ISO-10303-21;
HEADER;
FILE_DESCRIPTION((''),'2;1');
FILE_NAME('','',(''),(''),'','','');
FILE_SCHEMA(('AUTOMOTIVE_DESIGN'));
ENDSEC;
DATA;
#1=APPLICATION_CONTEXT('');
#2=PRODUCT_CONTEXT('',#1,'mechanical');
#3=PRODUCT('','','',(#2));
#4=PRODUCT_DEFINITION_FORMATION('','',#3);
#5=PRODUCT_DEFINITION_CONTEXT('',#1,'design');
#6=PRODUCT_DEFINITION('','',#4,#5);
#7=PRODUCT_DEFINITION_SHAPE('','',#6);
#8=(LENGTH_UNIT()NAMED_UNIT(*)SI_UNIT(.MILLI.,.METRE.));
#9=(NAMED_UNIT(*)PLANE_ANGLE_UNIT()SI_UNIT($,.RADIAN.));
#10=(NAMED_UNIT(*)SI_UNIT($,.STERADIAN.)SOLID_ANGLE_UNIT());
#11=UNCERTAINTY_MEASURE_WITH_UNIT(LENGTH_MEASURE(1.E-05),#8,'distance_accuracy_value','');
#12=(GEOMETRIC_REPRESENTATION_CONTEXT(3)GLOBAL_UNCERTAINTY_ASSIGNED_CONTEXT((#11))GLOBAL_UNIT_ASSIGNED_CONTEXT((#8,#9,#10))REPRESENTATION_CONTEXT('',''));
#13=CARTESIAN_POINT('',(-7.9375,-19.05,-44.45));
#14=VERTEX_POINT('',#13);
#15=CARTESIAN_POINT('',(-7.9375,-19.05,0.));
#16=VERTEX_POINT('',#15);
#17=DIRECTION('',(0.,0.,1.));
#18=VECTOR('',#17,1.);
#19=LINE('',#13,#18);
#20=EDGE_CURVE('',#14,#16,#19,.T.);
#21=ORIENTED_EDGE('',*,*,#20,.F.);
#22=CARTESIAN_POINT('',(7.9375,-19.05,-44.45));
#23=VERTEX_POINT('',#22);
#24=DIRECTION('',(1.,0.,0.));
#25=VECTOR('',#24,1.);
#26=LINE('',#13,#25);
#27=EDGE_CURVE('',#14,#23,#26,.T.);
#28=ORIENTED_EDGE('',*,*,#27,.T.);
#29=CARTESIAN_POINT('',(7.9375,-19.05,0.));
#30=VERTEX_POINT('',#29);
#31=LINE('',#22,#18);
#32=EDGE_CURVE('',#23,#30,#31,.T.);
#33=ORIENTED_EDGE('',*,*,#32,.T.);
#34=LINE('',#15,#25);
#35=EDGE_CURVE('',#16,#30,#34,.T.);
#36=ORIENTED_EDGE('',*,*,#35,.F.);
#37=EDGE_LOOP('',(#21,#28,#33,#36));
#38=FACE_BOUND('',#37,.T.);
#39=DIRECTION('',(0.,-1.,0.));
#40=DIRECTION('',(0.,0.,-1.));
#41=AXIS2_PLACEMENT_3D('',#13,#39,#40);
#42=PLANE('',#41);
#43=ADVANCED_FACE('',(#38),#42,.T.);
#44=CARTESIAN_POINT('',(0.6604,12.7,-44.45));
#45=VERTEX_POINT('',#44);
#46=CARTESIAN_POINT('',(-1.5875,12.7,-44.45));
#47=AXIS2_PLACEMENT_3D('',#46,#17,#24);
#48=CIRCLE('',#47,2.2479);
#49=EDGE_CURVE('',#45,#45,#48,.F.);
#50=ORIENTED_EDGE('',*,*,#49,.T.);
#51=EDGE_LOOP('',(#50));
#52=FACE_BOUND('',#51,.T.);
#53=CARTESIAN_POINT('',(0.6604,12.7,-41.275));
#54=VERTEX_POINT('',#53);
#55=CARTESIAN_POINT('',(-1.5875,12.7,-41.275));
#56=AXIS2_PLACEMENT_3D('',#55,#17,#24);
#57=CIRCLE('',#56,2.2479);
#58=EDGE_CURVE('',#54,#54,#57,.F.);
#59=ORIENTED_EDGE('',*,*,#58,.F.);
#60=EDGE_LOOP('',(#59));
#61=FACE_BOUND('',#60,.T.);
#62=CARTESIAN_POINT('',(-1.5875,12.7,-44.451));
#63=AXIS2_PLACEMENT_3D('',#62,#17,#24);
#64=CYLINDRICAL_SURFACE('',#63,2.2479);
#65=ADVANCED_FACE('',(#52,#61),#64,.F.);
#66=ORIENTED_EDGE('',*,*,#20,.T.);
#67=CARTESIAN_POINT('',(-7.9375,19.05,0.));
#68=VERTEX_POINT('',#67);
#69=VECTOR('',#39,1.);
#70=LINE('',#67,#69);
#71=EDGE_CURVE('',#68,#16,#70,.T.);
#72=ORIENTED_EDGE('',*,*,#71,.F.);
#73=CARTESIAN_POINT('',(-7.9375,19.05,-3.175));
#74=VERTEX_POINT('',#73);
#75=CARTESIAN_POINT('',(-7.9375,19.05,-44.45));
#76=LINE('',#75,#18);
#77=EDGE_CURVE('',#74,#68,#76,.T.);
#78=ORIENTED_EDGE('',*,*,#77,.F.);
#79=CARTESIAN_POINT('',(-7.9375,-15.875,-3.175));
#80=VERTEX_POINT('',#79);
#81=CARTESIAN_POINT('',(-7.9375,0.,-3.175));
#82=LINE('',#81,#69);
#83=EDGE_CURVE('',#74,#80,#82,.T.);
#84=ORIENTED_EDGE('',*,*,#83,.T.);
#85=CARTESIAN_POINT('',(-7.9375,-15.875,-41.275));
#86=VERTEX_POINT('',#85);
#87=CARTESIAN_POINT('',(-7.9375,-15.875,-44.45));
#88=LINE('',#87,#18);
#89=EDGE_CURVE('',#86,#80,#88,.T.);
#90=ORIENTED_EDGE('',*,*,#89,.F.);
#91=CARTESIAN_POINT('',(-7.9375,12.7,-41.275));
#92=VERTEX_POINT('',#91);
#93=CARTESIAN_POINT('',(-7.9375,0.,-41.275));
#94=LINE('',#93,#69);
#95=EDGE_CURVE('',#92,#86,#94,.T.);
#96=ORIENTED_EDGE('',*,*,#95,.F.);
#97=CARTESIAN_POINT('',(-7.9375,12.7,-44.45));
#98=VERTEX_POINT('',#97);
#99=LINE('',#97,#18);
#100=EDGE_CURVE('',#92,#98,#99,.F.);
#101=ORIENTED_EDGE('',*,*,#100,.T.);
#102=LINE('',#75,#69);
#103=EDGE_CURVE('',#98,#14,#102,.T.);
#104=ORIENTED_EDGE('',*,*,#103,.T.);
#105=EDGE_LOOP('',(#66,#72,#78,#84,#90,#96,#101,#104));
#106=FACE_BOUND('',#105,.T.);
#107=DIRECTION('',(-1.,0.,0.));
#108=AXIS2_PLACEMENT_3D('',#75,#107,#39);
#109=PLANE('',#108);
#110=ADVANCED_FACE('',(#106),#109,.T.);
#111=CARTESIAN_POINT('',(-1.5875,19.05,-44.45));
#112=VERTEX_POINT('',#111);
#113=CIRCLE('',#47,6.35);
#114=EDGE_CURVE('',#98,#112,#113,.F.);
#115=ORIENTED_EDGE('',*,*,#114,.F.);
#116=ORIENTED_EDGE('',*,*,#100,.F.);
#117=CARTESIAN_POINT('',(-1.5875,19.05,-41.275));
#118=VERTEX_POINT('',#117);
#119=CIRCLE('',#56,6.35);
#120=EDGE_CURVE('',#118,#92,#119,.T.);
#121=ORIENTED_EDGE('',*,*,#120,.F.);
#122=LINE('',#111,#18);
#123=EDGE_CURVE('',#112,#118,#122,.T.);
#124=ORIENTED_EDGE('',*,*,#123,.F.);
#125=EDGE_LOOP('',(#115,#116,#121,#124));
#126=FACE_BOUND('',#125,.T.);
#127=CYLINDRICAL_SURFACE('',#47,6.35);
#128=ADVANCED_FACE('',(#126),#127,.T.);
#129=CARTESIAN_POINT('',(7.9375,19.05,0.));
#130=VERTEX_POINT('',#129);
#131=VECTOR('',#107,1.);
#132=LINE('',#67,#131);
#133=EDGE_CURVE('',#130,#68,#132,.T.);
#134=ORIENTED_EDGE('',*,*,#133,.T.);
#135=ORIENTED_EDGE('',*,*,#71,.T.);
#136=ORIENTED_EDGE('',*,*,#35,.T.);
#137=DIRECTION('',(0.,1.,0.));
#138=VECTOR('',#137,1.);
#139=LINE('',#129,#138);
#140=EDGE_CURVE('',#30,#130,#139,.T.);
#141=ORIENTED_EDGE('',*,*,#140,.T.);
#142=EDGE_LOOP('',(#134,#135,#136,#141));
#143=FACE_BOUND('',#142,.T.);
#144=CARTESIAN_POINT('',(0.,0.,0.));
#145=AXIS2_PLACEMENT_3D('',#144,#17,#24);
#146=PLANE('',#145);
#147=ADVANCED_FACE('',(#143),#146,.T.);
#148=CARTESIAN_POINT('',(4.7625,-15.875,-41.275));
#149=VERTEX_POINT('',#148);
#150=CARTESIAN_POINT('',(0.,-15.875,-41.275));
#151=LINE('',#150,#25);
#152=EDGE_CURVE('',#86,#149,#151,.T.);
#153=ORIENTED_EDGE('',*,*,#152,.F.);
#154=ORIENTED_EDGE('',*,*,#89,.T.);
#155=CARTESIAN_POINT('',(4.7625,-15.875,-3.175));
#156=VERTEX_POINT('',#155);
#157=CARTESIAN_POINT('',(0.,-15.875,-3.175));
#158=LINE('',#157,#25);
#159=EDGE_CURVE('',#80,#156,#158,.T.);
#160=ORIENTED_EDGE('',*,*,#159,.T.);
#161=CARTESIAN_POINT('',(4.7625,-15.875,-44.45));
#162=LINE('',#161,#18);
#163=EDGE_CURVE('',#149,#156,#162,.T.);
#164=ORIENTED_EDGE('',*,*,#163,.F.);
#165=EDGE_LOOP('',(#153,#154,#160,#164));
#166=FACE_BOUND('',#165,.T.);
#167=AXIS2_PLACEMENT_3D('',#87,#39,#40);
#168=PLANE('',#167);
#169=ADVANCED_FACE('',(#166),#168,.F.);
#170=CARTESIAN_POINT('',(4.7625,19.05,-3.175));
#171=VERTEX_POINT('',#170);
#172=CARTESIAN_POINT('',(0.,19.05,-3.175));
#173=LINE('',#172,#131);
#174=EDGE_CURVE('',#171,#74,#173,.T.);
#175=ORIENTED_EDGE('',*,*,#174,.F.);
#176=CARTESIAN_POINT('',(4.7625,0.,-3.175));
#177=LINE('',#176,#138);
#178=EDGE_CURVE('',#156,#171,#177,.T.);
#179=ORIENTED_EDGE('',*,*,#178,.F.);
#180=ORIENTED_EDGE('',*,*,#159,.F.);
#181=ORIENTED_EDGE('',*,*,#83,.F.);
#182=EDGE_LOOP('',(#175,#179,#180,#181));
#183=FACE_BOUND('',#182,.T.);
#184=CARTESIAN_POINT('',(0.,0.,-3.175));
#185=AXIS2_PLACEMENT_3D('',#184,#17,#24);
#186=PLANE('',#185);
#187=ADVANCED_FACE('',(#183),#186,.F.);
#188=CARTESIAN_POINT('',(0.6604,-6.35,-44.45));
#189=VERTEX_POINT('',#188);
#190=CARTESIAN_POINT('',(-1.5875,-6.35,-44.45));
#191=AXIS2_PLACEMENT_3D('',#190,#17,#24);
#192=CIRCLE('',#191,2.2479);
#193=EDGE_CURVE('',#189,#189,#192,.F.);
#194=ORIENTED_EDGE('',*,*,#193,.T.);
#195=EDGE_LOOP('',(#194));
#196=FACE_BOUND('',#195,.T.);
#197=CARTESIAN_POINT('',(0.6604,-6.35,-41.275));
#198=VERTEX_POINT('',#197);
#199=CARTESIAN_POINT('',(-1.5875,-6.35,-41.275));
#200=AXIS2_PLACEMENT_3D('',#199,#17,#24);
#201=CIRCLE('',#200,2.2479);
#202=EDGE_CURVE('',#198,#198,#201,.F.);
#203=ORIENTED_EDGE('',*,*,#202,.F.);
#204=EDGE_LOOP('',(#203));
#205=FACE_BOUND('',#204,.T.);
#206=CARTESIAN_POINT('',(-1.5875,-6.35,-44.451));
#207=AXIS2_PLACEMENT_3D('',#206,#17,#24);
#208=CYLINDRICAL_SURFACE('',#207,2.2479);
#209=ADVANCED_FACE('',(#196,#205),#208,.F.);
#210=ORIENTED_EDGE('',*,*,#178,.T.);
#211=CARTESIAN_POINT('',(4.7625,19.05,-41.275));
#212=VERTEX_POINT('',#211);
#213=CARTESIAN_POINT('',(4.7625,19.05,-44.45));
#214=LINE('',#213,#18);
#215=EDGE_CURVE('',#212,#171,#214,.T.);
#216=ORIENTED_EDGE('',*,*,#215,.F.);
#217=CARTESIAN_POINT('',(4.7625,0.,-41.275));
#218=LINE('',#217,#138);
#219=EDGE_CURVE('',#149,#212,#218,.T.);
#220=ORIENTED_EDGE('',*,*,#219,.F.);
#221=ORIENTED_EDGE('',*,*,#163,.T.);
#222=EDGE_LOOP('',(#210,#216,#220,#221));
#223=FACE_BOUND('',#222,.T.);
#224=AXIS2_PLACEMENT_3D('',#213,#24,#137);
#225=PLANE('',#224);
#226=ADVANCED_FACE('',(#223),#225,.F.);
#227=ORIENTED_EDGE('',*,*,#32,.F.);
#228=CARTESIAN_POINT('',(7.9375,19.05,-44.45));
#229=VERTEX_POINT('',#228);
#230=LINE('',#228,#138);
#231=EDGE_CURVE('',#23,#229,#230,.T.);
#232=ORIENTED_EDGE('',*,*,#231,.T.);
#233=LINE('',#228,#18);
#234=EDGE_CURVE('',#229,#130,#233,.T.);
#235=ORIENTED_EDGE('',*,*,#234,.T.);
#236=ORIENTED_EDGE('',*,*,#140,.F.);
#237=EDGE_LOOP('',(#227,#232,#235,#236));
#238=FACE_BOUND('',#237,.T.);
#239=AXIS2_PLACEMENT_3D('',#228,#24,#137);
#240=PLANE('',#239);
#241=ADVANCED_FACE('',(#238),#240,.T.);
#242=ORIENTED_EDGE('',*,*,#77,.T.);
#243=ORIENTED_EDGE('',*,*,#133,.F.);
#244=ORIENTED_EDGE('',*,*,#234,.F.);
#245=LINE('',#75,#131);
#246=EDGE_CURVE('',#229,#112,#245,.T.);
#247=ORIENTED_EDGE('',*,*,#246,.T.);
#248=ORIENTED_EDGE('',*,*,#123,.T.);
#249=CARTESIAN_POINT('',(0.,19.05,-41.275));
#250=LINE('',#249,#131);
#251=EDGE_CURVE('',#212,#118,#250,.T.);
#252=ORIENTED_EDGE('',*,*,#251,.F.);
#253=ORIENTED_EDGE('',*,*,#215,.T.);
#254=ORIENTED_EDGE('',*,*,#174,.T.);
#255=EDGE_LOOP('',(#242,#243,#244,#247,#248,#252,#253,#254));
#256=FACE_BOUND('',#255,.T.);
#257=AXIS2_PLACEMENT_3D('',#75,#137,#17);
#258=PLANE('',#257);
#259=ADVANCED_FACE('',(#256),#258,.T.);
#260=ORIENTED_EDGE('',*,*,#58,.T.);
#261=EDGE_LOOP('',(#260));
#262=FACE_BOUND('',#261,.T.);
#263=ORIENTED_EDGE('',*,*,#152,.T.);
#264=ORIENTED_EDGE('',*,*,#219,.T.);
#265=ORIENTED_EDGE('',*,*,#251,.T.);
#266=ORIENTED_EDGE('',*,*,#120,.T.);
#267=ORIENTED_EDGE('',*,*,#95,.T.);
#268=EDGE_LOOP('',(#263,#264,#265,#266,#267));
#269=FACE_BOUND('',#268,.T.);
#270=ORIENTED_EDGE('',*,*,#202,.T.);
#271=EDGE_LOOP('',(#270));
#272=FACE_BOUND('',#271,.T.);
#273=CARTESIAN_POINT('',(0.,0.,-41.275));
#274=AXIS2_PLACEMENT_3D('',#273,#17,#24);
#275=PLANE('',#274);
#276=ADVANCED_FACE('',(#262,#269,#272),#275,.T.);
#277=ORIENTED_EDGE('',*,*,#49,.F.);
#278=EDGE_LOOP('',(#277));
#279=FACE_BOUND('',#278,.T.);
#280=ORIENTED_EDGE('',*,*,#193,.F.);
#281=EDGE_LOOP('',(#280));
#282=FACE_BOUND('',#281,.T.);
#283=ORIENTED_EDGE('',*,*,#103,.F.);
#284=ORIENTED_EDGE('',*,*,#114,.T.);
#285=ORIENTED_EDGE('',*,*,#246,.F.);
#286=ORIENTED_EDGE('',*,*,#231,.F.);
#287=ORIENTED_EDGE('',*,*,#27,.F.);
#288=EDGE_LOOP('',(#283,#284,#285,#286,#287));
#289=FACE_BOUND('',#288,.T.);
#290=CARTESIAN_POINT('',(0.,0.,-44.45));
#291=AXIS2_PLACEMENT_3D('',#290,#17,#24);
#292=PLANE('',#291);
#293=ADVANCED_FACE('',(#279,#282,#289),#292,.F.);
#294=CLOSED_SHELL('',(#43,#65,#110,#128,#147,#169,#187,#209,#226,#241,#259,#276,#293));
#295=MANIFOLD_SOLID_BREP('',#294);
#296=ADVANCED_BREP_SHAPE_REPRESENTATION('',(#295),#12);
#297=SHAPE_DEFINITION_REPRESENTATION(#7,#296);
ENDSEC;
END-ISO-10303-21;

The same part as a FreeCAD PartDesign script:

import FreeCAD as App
import Part
import Sketcher
Q = App.Units.Quantity


def edges_at(feature, points):
    """Names of the edges that pass closest to the given points."""
    edges = feature.Shape.Edges
    near = lambda p: min(range(len(edges)), key=lambda i: edges[i].distToShape(Part.Vertex(*p))[0])
    return sorted({f"Edge{near(p) + 1}" for p in points})


def faces_at(feature, points):
    """Names of the faces that lie closest to the given points."""
    faces = feature.Shape.Faces
    near = lambda p: min(range(len(faces)), key=lambda i: faces[i].distToShape(Part.Vertex(*p))[0])
    return sorted({f"Face{near(p) + 1}" for p in points})

doc = App.newDocument("Part")
params = doc.addObject("Spreadsheet::Sheet", "Params")
for row, (alias, value) in enumerate([
    ("sketch1_height", "1.5 in"),
    ("sketch1_width", "0.625 in"),
    ("pad1_length", "1.75 in"),
    ("thickness_wall", "0.125 in"),
    ("sketch2_diameter", "0.177 in"),
    ("pocket1_length", "1.625 in"),
    ("sketch3_diameter", "0.177 in"),
    ("pocket2_length", "1.625 in"),
    ("fillet_radius", "0.25 in"),
], start=1):
    params.set(f"A{row}", alias)
    params.set(f"B{row}", "=" + value)
    params.setAlias(f"B{row}", alias)

body = doc.addObject("PartDesign::Body", "Body")

# Sketch on XY plane
sketch1 = body.newObject("Sketcher::SketchObject", "Sketch")
sketch1.AttachmentSupport = (doc.getObject("XY_Plane"), [""])
sketch1.MapMode = "FlatFace"
sketch1.addGeometry([
    Part.LineSegment(App.Vector(-8, 19, 0), App.Vector(-8, -19, 0)),
    Part.LineSegment(App.Vector(-8, -19, 0), App.Vector(8, -19, 0)),
    Part.LineSegment(App.Vector(8, -19, 0), App.Vector(8, 19, 0)),
    Part.LineSegment(App.Vector(8, 19, 0), App.Vector(-8, 19, 0)),
], False)
sketch1.addConstraint([
    Sketcher.Constraint("Coincident", 0, 2, 1, 1),
    Sketcher.Constraint("Coincident", 1, 2, 2, 1),
    Sketcher.Constraint("Coincident", 2, 2, 3, 1),
    Sketcher.Constraint("Coincident", 3, 2, 0, 1),
    Sketcher.Constraint("Vertical", 0),
    Sketcher.Constraint("Horizontal", 1),
    Sketcher.Constraint("Vertical", 2),
    Sketcher.Constraint("Horizontal", 3),
    Sketcher.Constraint("Symmetric", 0, 2, 2, 2, -1, 1),
    Sketcher.Constraint("DistanceY", 0, 2, 0, 1, Q("1.5 in")),
    Sketcher.Constraint("DistanceX", 1, 1, 1, 2, Q("0.625 in")),
])
sketch1.setExpression("Constraints[9]", "Params.sketch1_height")
sketch1.setExpression("Constraints[10]", "Params.sketch1_width")
pad1 = body.newObject("PartDesign::Pad", "Pad")
pad1.Profile = sketch1
pad1.setExpression("Length", "Params.pad1_length")
pad1.Reversed = True
doc.recompute()

thickness = body.newObject("PartDesign::Thickness", "Thickness")
thickness.Base = (pad1, faces_at(pad1, [(-7.938, 0, -22.225), (0, 19.05, -22.225)]))
thickness.setExpression("Value", "Params.thickness_wall")
thickness.Reversed = True
thickness.Join = "Intersection"

# Sketch on XY plane
sketch2 = body.newObject("Sketcher::SketchObject", "Sketch001")
sketch2.AttachmentSupport = (doc.getObject("XY_Plane"), [""])
sketch2.MapMode = "FlatFace"
sketch2.AttachmentOffset = App.Placement(App.Vector(0, 0, -0.125 * 25.4), App.Rotation())
sketch2.addGeometry(Part.Circle(App.Vector(-1.6, -6.3, 0), App.Vector(0, 0, 1), 2.2), False)
sketch2.addConstraint([
    Sketcher.Constraint("Diameter", 0, Q("0.177 in")),
    Sketcher.Constraint("DistanceY", 0, 3, -1, 1, Q("0.25 in")),
    Sketcher.Constraint("DistanceX", 0, 3, -1, 1, Q("0.0625 in")),
])
sketch2.setExpression("Constraints[0]", "Params.sketch2_diameter")
pocket1 = body.newObject("PartDesign::Pocket", "Pocket")
pocket1.Profile = sketch2
pocket1.setExpression("Length", "Params.pocket1_length")

# Sketch on XY plane
sketch3 = body.newObject("Sketcher::SketchObject", "Sketch002")
sketch3.AttachmentSupport = (doc.getObject("XY_Plane"), [""])
sketch3.MapMode = "FlatFace"
sketch3.AttachmentOffset = App.Placement(App.Vector(0, 0, -0.125 * 25.4), App.Rotation())
sketch3.addGeometry(Part.Circle(App.Vector(-1.6, 12.7, 0), App.Vector(0, 0, 1), 2.2), False)
sketch3.addConstraint([
    Sketcher.Constraint("Diameter", 0, Q("0.177 in")),
    Sketcher.Constraint("DistanceY", -1, 1, 0, 3, Q("0.5 in")),
    Sketcher.Constraint("DistanceX", 0, 3, -1, 1, Q("0.0625 in")),
])
sketch3.setExpression("Constraints[0]", "Params.sketch3_diameter")
pocket2 = body.newObject("PartDesign::Pocket", "Pocket001")
pocket2.Profile = sketch3
pocket2.setExpression("Length", "Params.pocket2_length")
doc.recompute()

fillet = body.newObject("PartDesign::Fillet", "Fillet")
fillet.Base = (pocket2, edges_at(pocket2, [(-7.938, 19.05, -42.862)]))
fillet.setExpression("Radius", "Params.fillet_radius")

doc.recompute()
